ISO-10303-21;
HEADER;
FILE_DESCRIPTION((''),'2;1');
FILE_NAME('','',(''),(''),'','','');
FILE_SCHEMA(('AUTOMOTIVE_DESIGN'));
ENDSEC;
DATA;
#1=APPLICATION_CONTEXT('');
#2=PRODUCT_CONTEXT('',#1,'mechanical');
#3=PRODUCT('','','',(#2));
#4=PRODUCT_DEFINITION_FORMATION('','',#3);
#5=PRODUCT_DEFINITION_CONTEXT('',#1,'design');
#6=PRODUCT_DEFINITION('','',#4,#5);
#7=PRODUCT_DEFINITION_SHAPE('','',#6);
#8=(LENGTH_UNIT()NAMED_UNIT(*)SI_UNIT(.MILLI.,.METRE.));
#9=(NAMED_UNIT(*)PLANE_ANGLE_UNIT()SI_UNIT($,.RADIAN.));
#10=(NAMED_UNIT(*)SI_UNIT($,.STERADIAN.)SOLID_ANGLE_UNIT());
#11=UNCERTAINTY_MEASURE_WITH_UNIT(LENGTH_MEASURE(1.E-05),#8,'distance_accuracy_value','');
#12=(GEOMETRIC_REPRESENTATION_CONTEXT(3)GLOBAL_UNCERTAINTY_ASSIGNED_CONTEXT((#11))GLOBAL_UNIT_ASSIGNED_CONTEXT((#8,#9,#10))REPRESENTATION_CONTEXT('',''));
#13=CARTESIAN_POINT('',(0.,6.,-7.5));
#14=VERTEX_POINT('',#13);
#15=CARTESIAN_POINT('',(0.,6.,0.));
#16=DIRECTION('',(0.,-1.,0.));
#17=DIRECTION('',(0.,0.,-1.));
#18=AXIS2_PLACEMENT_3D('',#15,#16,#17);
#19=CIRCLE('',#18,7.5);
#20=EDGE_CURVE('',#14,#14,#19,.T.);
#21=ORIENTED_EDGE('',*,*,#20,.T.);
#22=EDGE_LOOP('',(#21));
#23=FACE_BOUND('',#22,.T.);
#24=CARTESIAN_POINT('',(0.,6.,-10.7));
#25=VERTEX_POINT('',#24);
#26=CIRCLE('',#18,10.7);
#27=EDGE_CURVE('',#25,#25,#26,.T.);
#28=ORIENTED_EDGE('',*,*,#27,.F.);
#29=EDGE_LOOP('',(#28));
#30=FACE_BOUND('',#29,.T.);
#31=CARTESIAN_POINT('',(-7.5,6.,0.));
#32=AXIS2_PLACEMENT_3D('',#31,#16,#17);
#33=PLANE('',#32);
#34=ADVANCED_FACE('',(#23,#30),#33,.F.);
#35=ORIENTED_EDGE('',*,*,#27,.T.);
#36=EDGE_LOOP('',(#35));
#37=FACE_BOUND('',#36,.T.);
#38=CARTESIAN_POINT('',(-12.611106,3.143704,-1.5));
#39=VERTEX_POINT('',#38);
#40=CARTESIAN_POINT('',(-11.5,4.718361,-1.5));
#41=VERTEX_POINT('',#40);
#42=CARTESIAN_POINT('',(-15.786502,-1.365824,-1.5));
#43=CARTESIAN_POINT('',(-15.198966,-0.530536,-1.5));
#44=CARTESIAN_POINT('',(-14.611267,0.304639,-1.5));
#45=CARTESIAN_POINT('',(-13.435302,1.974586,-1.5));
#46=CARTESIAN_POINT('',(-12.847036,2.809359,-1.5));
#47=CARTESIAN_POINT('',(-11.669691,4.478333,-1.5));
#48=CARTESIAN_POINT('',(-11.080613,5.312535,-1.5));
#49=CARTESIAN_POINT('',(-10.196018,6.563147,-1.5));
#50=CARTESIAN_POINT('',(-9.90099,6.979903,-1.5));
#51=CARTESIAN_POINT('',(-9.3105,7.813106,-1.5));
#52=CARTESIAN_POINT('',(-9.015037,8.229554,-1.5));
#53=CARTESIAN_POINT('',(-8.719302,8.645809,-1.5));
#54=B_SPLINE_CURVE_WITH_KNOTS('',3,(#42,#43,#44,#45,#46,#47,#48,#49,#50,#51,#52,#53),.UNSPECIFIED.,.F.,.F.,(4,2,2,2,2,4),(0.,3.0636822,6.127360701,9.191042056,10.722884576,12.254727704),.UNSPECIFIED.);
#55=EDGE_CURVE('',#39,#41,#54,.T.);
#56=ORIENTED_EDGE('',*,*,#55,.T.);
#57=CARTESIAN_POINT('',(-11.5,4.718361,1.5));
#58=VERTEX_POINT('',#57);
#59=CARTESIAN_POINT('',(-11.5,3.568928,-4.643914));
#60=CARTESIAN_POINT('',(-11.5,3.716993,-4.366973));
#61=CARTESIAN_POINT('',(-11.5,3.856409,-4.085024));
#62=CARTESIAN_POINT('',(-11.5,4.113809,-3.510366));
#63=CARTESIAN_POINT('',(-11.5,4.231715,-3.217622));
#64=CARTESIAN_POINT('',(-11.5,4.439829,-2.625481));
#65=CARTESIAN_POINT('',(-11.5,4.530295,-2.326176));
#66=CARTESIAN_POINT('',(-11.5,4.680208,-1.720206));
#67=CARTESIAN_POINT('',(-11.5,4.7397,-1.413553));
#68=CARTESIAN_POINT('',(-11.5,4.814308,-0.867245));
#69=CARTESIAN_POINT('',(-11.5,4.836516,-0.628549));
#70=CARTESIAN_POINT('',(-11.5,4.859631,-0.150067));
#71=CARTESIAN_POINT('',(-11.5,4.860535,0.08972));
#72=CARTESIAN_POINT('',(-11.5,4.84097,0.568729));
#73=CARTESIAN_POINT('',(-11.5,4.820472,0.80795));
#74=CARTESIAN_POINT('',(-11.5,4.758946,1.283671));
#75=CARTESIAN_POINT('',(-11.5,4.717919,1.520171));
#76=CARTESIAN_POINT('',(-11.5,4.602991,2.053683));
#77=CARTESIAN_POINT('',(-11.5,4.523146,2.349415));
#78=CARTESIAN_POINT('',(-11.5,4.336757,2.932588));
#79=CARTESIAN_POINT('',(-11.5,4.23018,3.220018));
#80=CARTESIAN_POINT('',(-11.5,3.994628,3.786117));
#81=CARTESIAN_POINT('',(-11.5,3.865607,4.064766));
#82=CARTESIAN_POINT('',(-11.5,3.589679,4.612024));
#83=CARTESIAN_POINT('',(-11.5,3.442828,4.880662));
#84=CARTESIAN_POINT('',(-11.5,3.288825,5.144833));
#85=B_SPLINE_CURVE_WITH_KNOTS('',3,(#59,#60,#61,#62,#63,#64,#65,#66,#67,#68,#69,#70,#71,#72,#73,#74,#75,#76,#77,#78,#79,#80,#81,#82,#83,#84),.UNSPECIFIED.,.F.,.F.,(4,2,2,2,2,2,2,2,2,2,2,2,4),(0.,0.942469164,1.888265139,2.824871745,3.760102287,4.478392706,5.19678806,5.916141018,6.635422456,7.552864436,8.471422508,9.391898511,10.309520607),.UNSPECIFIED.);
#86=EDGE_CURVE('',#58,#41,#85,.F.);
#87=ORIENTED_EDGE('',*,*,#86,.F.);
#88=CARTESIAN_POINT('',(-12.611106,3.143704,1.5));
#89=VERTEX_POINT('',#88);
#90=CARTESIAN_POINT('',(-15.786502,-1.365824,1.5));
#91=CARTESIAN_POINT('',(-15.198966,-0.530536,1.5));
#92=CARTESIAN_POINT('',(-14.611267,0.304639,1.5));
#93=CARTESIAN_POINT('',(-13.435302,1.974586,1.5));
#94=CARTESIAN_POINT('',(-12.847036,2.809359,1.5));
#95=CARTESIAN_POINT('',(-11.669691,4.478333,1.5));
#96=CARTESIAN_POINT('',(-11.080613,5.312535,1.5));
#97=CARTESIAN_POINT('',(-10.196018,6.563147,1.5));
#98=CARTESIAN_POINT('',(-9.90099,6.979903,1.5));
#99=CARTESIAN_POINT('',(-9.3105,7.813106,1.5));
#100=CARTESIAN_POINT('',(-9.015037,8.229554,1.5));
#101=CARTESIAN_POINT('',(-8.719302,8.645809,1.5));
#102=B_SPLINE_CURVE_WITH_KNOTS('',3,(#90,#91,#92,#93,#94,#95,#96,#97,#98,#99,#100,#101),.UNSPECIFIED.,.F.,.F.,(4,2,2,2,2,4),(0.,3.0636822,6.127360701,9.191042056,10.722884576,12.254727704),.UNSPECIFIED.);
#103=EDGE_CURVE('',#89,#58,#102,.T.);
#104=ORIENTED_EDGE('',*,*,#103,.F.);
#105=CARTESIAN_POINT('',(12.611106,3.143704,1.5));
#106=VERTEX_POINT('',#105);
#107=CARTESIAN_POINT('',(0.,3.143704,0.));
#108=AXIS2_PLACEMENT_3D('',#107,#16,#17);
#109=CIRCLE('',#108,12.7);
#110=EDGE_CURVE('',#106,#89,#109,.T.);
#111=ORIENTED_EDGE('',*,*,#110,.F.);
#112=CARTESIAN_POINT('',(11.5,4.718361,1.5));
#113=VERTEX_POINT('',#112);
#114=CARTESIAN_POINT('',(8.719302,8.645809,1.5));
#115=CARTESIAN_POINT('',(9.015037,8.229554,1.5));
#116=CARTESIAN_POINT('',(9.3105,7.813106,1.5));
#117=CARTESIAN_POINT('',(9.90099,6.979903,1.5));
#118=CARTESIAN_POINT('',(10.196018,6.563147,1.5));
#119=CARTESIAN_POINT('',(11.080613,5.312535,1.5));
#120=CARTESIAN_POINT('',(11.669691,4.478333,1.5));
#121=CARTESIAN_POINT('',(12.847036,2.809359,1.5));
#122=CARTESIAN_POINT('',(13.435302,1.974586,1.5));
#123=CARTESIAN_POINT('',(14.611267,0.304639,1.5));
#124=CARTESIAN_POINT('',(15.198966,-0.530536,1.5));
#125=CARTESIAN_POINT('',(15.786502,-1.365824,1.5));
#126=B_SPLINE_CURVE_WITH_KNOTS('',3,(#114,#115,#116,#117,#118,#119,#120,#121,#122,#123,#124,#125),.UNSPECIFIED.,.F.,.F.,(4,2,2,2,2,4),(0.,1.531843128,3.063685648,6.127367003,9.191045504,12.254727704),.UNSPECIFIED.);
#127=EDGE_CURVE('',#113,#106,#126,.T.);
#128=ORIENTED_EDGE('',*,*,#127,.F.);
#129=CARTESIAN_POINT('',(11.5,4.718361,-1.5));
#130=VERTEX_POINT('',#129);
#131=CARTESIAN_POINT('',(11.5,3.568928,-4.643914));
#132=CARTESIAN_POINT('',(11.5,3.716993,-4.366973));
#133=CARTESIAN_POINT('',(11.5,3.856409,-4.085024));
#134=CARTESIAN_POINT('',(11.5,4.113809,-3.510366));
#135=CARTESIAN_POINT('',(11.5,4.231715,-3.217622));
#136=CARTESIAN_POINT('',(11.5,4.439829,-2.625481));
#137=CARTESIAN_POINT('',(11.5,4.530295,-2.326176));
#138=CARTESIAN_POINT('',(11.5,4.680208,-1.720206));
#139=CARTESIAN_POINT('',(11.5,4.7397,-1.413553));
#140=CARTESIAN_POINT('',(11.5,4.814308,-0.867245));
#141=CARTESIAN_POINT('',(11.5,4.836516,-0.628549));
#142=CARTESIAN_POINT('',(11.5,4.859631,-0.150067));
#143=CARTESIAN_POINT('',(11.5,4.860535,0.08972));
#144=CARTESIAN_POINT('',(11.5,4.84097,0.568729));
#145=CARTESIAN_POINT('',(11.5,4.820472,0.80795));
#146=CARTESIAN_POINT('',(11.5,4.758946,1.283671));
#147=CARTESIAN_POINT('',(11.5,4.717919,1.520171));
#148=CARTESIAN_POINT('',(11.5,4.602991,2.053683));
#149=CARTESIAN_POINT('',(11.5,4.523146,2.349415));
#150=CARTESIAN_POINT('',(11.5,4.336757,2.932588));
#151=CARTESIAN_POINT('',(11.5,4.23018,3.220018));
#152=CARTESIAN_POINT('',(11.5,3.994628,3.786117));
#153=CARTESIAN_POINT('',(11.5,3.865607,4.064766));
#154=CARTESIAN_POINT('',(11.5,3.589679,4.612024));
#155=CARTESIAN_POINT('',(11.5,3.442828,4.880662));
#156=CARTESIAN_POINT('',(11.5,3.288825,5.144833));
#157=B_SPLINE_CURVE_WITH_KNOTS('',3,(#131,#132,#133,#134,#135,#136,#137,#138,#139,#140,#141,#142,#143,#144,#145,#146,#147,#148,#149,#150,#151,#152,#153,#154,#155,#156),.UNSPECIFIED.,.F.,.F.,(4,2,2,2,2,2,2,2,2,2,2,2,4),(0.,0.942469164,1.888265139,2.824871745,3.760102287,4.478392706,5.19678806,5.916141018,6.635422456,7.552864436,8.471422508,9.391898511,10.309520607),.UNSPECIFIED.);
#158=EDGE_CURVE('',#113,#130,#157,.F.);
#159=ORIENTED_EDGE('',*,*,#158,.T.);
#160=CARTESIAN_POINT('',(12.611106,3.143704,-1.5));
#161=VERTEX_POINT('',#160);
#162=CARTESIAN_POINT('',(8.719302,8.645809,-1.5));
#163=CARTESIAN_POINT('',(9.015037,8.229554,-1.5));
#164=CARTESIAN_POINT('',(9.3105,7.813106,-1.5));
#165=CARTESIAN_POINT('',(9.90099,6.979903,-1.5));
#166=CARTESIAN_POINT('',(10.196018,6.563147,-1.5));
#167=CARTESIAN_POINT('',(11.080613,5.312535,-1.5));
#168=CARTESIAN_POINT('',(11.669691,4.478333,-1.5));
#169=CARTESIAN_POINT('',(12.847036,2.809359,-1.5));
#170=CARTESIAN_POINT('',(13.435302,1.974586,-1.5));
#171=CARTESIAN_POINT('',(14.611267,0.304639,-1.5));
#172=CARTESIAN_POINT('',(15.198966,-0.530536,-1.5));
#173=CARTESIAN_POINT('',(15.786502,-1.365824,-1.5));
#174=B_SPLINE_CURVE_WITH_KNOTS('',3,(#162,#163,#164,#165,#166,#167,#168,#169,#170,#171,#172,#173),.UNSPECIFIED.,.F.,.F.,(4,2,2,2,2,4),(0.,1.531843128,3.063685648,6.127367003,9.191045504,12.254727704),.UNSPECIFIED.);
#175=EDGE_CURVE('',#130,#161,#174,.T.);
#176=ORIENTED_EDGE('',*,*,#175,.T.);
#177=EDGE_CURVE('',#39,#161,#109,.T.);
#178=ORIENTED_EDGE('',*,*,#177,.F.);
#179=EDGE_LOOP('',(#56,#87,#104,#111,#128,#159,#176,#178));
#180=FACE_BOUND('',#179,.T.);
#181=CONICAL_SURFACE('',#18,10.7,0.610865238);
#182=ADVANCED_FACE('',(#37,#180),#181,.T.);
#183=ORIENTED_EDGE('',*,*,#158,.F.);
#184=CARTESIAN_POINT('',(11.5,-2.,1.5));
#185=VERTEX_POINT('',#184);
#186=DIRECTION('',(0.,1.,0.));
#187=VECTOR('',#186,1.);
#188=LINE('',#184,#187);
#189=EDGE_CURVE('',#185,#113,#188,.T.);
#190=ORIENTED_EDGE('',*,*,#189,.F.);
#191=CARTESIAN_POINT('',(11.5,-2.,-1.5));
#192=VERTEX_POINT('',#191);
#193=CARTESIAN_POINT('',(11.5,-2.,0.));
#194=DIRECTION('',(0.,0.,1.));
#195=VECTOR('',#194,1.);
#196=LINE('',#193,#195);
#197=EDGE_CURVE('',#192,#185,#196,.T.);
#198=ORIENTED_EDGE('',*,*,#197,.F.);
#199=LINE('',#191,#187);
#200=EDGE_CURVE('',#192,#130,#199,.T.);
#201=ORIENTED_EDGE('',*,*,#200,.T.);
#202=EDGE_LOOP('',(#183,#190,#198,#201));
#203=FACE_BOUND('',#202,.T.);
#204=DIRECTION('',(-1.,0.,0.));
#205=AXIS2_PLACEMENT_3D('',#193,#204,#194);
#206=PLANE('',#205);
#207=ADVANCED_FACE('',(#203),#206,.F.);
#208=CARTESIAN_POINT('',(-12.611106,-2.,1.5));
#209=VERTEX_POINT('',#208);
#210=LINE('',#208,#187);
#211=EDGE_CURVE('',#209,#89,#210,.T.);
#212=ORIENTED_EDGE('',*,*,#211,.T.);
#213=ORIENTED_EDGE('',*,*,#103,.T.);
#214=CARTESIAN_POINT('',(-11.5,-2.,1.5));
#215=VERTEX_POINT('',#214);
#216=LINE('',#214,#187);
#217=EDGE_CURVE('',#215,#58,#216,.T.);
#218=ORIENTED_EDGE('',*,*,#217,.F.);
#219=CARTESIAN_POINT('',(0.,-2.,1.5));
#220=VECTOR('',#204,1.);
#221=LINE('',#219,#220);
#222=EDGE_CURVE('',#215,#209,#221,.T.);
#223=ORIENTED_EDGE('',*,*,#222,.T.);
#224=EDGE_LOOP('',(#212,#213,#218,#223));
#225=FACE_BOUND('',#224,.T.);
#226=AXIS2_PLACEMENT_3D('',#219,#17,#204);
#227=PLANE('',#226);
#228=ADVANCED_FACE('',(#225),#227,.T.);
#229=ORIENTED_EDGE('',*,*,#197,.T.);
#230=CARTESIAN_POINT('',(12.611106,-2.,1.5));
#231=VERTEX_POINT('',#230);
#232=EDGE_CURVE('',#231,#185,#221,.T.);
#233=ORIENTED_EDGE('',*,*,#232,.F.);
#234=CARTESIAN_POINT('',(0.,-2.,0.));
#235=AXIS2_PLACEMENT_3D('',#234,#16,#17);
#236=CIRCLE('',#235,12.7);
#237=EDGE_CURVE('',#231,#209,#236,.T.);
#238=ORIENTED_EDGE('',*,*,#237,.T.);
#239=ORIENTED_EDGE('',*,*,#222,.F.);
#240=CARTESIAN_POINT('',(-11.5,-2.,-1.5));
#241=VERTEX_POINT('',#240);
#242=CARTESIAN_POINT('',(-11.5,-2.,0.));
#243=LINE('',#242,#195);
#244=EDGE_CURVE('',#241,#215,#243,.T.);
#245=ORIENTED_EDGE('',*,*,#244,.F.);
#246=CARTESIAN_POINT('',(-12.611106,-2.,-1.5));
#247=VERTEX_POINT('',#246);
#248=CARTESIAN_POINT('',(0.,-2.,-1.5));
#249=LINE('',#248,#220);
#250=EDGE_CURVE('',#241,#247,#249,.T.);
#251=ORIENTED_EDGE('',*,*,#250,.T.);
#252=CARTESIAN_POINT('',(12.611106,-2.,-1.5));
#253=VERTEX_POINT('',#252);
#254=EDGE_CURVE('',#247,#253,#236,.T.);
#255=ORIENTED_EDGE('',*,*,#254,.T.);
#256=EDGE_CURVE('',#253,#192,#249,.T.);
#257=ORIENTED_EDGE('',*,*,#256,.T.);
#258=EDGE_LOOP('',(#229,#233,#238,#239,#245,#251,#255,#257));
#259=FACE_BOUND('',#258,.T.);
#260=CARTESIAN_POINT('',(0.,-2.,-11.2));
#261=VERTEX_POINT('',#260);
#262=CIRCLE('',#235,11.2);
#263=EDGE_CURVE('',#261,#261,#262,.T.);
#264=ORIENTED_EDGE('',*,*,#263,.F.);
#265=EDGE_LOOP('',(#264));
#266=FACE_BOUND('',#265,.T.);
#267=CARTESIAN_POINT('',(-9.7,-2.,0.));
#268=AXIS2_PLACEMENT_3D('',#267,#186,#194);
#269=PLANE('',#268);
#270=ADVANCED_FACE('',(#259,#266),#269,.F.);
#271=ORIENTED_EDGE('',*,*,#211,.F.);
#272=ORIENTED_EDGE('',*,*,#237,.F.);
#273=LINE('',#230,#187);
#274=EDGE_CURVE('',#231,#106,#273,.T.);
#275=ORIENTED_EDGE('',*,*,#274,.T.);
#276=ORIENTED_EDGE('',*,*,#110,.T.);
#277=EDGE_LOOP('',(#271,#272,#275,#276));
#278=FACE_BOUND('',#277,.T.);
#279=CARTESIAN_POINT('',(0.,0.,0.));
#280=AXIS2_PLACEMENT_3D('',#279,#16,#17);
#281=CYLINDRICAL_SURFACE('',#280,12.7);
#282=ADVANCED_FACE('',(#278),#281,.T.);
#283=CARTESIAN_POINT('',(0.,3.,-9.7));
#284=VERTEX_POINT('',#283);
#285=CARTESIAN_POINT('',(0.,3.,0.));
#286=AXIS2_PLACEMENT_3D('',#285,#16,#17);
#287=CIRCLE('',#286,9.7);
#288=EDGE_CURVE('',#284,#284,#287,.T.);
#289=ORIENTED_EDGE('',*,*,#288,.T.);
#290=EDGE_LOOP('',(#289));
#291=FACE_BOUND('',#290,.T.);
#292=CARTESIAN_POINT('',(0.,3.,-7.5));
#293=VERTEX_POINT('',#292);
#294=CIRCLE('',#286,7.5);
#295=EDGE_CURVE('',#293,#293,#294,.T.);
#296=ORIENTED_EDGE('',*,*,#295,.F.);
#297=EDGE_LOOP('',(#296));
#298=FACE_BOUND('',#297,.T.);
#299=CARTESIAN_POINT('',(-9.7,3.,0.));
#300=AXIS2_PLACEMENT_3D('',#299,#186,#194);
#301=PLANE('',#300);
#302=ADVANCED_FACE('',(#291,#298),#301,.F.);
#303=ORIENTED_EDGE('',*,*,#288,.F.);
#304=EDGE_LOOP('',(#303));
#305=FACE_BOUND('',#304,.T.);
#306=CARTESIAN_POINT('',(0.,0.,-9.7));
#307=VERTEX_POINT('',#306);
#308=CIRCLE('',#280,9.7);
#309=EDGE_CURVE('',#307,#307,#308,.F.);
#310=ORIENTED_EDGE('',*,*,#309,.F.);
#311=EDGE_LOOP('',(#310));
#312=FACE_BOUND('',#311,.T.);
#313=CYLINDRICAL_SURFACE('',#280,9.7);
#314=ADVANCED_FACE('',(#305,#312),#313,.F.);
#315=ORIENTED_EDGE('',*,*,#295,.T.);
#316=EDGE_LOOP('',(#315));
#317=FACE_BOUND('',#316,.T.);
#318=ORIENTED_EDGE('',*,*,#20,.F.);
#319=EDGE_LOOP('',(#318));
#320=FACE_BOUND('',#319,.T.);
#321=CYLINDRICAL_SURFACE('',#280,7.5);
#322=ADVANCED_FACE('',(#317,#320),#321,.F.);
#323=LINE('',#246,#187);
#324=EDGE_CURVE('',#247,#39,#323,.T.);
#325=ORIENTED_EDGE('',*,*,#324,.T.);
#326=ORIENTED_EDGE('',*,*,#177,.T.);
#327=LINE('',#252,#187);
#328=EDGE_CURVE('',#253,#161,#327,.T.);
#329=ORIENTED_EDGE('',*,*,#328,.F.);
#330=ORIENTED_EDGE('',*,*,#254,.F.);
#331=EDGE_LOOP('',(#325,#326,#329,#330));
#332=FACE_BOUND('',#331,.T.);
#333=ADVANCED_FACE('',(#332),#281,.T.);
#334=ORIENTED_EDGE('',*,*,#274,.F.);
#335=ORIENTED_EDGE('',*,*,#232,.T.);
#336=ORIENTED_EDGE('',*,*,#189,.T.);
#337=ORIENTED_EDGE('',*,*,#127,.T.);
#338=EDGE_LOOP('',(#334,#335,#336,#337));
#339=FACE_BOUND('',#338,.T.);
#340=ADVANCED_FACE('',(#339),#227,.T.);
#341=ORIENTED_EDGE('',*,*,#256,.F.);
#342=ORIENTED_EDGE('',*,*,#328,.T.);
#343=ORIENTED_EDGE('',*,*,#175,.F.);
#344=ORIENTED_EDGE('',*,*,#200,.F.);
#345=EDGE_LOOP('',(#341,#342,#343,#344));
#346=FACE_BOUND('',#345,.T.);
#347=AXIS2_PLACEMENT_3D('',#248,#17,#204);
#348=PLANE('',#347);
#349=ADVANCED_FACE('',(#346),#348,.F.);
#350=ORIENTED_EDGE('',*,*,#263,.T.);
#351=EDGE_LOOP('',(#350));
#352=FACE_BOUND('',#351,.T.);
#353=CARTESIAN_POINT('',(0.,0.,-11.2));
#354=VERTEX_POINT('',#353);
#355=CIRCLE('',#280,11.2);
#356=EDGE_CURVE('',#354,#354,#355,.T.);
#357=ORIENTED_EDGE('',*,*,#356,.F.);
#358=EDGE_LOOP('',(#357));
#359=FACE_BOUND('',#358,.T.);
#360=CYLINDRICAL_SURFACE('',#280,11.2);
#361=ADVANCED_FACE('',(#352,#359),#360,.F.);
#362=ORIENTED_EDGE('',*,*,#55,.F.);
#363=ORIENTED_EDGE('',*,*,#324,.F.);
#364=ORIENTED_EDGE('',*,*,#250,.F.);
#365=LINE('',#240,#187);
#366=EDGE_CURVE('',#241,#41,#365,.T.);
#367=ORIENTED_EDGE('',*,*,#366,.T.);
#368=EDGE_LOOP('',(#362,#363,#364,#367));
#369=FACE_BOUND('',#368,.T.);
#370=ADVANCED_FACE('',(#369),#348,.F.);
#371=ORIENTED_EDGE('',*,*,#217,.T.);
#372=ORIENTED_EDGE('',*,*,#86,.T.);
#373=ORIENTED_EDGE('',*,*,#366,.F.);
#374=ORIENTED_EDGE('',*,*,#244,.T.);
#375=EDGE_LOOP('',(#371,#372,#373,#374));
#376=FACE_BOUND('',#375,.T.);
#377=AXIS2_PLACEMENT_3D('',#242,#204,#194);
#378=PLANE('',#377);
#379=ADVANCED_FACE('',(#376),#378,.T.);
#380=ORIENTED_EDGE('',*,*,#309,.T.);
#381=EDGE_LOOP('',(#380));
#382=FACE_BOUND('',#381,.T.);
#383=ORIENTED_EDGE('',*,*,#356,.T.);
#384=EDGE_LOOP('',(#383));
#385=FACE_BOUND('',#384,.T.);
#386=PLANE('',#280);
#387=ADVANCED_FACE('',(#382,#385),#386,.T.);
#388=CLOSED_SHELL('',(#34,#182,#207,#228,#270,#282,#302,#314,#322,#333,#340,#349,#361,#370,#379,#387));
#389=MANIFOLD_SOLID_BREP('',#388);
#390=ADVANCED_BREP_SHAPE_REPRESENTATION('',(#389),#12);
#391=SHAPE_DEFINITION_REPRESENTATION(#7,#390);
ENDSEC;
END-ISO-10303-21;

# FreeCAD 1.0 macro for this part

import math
import FreeCAD as App
import Part
import Sketcher

V = App.Vector
Q = App.Units.Quantity


def add_polygon(sketch, points):
    """Adds a closed chain of lines whose ends are joined by coincident constraints."""
    first, n = sketch.GeometryCount, len(points)
    for a, b in zip(points, points[1:] + points[:1]):
        sketch.addGeometry(Part.LineSegment(App.Vector(*a, 0), App.Vector(*b, 0)), False)
    for i in range(n):
        sketch.addConstraint(Sketcher.Constraint("Coincident", first + i, 2, first + (i + 1) % n, 1))

doc = App.newDocument("Part")
body = doc.addObject("PartDesign::Body", "Body")

# Sketch on XY plane
sketch1 = doc.addObject("Sketcher::SketchObject", "Sketch")
body.addObject(sketch1)
sketch1.AttachmentSupport = (doc.XY_Plane, [""])
sketch1.MapMode = "FlatFace"
add_polygon(sketch1, [(-9.7, -2), (-9.7, 3), (-7.5, 3), (-7.5, 6), (-10.7, 6), (-12.7, 3.143704), (-12.7, -2)])  # lines 0-6
sketch1.addConstraint([
    Sketcher.Constraint("Vertical", 0),
    Sketcher.Constraint("Horizontal", 1),
    Sketcher.Constraint("Vertical", 2),
    Sketcher.Constraint("Horizontal", 3),
    Sketcher.Constraint("Vertical", 5),
    Sketcher.Constraint("Horizontal", 6),
    Sketcher.Constraint("Equal", 6, 2),
    Sketcher.Constraint("DistanceX", 6, 1, 6, 2, Q("3 mm")),
    Sketcher.Constraint("DistanceY", 0, 1, 0, 2, Q("5 mm")),
    Sketcher.Constraint("Angle", 4, Q("-125 deg")),
    Sketcher.Constraint("DistanceX", 1, 1, 1, 2, Q("2.2 mm")),
    Sketcher.Constraint("DistanceX", 3, 2, 3, 1, Q("3.2 mm")),
    Sketcher.Constraint("DistanceY", -1, 1, 0, 2, Q("3 mm")),
    Sketcher.Constraint("DistanceX", 0, 2, -1, 1, Q("9.7 mm")),
])
revolution = doc.addObject("PartDesign::Revolution", "Revolution")
body.addObject(revolution)
revolution.Profile = sketch1
revolution.ReferenceAxis = (sketch1, ["V_Axis"])
revolution.Angle = 360

# Sketch on XZ plane
sketch2 = doc.addObject("Sketcher::SketchObject", "Sketch001")
body.addObject(sketch2)
sketch2.AttachmentSupport = (doc.XZ_Plane, [""])
sketch2.MapMode = "FlatFace"
sketch2.AttachmentOffset = App.Placement(V(0, 0, 2), App.Rotation())
sketch2.addGeometry([
    Part.Circle(V(0, 0, 0), V(0, 0, 1), 11.2),
    Part.Circle(V(0, 0, 0), V(0, 0, 1), 9.7),
], False)
sketch2.addConstraint([
    Sketcher.Constraint("Coincident", 0, 3, -1, 1),
    Sketcher.Constraint("Coincident", 1, 3, -1, 1),
    Sketcher.Constraint("Diameter", 0, Q("22.4 mm")),
    Sketcher.Constraint("Diameter", 1, Q("19.4 mm")),
])
pocket1 = doc.addObject("PartDesign::Pocket", "Pocket")
body.addObject(pocket1)
pocket1.Profile = sketch2
pocket1.Length = 2

# Sketch on XZ plane
sketch3 = doc.addObject("Sketcher::SketchObject", "Sketch002")
body.addObject(sketch3)
sketch3.AttachmentSupport = (doc.XZ_Plane, [""])
sketch3.MapMode = "FlatFace"
sketch3.AttachmentOffset = App.Placement(V(0, 0, -6), App.Rotation())
sketch3.addGeometry([
    Part.LineSegment(V(-11.5, 1.5, 0), V(-11.5, -1.5, 0)),  # 0
    Part.LineSegment(V(-11.5, -1.5, 0), V(-12.611106, -1.5, 0)),  # 1
    Part.ArcOfCircle(Part.Circle(V(0, 0, 0), V(0, 0, 1), 12.7), math.radians(173.216949), math.radians(186.783051)),  # 2
    Part.LineSegment(V(-12.611106, 1.5, 0), V(-11.5, 1.5, 0)),  # 3
    Part.LineSegment(V(12.611106, -1.5, 0), V(11.5, -1.5, 0)),  # 4
    Part.LineSegment(V(11.5, -1.5, 0), V(11.5, 1.5, 0)),  # 5
    Part.LineSegment(V(11.5, 1.5, 0), V(12.611106, 1.5, 0)),  # 6
    Part.ArcOfCircle(Part.Circle(V(0, 0, 0), V(0, 0, 1), 12.7), math.radians(0), math.radians(6.783052)),  # 7
    Part.ArcOfCircle(Part.Circle(V(0, 0, 0), V(0, 0, 1), 12.7), math.radians(-6.783052), math.radians(0)),  # 8
], False)
sketch3.addConstraint([
    Sketcher.Constraint("Coincident", 0, 2, 1, 1),
    Sketcher.Constraint("Coincident", 1, 2, 2, 2),
    Sketcher.Constraint("Coincident", 2, 1, 3, 1),
    Sketcher.Constraint("Coincident", 3, 2, 0, 1),
    Sketcher.Constraint("Coincident", 4, 2, 5, 1),
    Sketcher.Constraint("Coincident", 5, 2, 6, 1),
    Sketcher.Constraint("Coincident", 6, 2, 7, 2),
    Sketcher.Constraint("Tangent", 7, 1, 8, 2),
    Sketcher.Constraint("Coincident", 8, 1, 4, 1),
    Sketcher.Constraint("Vertical", 0),
    Sketcher.Constraint("Horizontal", 1),
    Sketcher.Constraint("Horizontal", 3),
    Sketcher.Constraint("Horizontal", 4),
    Sketcher.Constraint("Vertical", 5),
    Sketcher.Constraint("Horizontal", 6),
    Sketcher.Constraint("Coincident", 2, 3, -1, 1),
    Sketcher.Constraint("Coincident", 7, 3, -1, 1),
    Sketcher.Constraint("Equal", 2, 7),
    Sketcher.Constraint("Equal", 7, 8),
    Sketcher.Constraint("Symmetric", 3, 2, 4, 2, -1, 1),
    Sketcher.Constraint("PointOnObject", 7, 1, -1),
    Sketcher.Constraint("Horizontal", 1, 2, 4, 2),
    Sketcher.Constraint("Horizontal", 3, 2, 5, 2),
    Sketcher.Constraint("Radius", 2, Q("12.7 mm")),
    Sketcher.Constraint("DistanceY", 0, 2, 0, 1, Q("3 mm")),
    Sketcher.Constraint("DistanceX", 0, 2, 4, 2, Q("23 mm")),
])
pocket2 = doc.addObject("PartDesign::Pocket", "Pocket001")
body.addObject(pocket2)
pocket2.Profile = sketch3
pocket2.Type = "ThroughAll"
pocket2.Reversed = True

doc.recompute()
